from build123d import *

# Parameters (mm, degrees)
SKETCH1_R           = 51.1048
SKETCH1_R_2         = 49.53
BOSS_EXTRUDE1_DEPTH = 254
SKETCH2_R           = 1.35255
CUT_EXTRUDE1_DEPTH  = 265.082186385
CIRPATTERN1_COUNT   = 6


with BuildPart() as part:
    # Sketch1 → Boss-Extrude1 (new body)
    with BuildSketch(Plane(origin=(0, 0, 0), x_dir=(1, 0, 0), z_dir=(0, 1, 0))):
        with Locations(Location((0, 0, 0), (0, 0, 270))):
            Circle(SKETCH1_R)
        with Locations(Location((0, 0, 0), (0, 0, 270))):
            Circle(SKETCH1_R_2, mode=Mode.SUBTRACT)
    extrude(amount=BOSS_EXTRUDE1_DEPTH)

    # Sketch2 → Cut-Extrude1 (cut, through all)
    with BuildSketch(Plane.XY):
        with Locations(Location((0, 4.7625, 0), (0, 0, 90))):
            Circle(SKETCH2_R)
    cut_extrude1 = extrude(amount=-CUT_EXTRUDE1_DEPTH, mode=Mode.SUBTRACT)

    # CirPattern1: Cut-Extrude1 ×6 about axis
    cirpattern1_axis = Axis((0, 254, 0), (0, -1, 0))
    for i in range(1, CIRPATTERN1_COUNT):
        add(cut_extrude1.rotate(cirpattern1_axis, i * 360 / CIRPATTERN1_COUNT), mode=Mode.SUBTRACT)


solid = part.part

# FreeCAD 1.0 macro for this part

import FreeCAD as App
import Part
import Sketcher
from FreeCAD import Vector
Q = App.Units.Quantity

doc = App.newDocument("Part")
body = doc.addObject("PartDesign::Body", "Body")

sketch1 = body.newObject("Sketcher::SketchObject", "Sketch")
sketch1.AttachmentSupport = (doc.getObject("XZ_Plane"), [""])
sketch1.MapMode = "FlatFace"
sketch1.addGeometry([
    Part.Circle(Vector(0, 0, 0), Vector(0, 0, 1), 51),
    Part.Circle(Vector(0, 0, 0), Vector(0, 0, 1), 50),
], False)
sketch1.addConstraint([
    Sketcher.Constraint("Coincident", 0, 3, -1, 1),
    Sketcher.Constraint("Coincident", 1, 3, -1, 1),
    Sketcher.Constraint("Diameter", 1, Q("3.9 in")),
    Sketcher.Constraint("Diameter", 0, Q("4.024 in")),
])
pad1 = body.newObject("PartDesign::Pad", "Pad")
pad1.Profile = sketch1
pad1.Length = Q("10 in")
pad1.Reversed = True

sketch2 = body.newObject("Sketcher::SketchObject", "Sketch001")
sketch2.AttachmentSupport = (doc.getObject("XY_Plane"), [""])
sketch2.MapMode = "FlatFace"
sketch2.addGeometry(Part.Circle(Vector(0, 4.8, 0), Vector(0, 0, 1), 1.4), False)
sketch2.addConstraint([
    Sketcher.Constraint("PointOnObject", 0, 3, -2),
    Sketcher.Constraint("Diameter", 0, Q("0.1065 in")),
    Sketcher.Constraint("DistanceY", -1, 1, 0, 3, Q("0.1875 in")),
])
pocket1 = body.newObject("PartDesign::Pocket", "Pocket")
pocket1.Profile = sketch2
pocket1.Type = "ThroughAll"
doc.recompute()

polarpattern = body.newObject("PartDesign::PolarPattern", "PolarPattern")
polarpattern.Originals = [pocket1]
polarpattern.Axis = (doc.getObject("Y_Axis"), [""])
polarpattern.Angle = 360
polarpattern.Occurrences = 6
body.Tip = polarpattern

doc.recompute()
